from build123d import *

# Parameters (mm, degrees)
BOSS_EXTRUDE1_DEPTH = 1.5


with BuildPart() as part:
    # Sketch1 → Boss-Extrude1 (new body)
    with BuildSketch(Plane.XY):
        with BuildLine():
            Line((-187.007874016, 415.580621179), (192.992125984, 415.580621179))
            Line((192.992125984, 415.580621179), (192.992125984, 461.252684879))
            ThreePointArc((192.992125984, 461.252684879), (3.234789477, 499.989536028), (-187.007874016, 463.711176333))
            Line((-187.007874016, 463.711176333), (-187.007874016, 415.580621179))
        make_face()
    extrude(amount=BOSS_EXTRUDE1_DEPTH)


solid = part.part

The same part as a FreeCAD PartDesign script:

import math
import FreeCAD as App
import Part
import Sketcher
Q = App.Units.Quantity

doc = App.newDocument("Part")
body = doc.addObject("PartDesign::Body", "Body")

sketch1 = doc.addObject("Sketcher::SketchObject", "Sketch")
body.addObject(sketch1)
sketch1.AttachmentSupport = (doc.XY_Plane, [""])
sketch1.MapMode = "FlatFace"
sketch1.addGeometry([
    Part.LineSegment(App.Vector(-187.007874, 415.580621, 0), App.Vector(192.992126, 415.580621, 0)),
    Part.LineSegment(App.Vector(192.992126, 415.580621, 0), App.Vector(192.992126, 461.252685, 0)),
    Part.ArcOfCircle(Part.Circle(App.Vector(0, 0, 0), App.Vector(0, 0, 1), 500), math.radians(67.295143), math.radians(111.963493)),
    Part.LineSegment(App.Vector(-187.007874, 463.711176, 0), App.Vector(-187.007874, 415.580621, 0)),
], False)
sketch1.addConstraint([
    Sketcher.Constraint("Coincident", 0, 2, 1, 1),
    Sketcher.Constraint("Coincident", 1, 2, 2, 1),
    Sketcher.Constraint("Coincident", 2, 2, 3, 1),
    Sketcher.Constraint("Coincident", 3, 2, 0, 1),
    Sketcher.Constraint("Horizontal", 0),
    Sketcher.Constraint("Vertical", 1),
    Sketcher.Constraint("Vertical", 3),
    Sketcher.Constraint("Coincident", 2, 3, -1, 1),
    Sketcher.Constraint("Radius", 2, Q("500 mm")),
    Sketcher.Constraint("DistanceX", 0, 1, 0, 2, Q("380 mm")),
    Sketcher.Constraint("DistanceY", 1, 1, 1, 2, Q("45.672064 mm")),
    Sketcher.Constraint("DistanceY", 3, 2, 3, 1, Q("48.130555 mm")),
])
pad1 = doc.addObject("PartDesign::Pad", "Pad")
body.addObject(pad1)
pad1.Profile = sketch1
pad1.Length = 1.5

doc.recompute()
